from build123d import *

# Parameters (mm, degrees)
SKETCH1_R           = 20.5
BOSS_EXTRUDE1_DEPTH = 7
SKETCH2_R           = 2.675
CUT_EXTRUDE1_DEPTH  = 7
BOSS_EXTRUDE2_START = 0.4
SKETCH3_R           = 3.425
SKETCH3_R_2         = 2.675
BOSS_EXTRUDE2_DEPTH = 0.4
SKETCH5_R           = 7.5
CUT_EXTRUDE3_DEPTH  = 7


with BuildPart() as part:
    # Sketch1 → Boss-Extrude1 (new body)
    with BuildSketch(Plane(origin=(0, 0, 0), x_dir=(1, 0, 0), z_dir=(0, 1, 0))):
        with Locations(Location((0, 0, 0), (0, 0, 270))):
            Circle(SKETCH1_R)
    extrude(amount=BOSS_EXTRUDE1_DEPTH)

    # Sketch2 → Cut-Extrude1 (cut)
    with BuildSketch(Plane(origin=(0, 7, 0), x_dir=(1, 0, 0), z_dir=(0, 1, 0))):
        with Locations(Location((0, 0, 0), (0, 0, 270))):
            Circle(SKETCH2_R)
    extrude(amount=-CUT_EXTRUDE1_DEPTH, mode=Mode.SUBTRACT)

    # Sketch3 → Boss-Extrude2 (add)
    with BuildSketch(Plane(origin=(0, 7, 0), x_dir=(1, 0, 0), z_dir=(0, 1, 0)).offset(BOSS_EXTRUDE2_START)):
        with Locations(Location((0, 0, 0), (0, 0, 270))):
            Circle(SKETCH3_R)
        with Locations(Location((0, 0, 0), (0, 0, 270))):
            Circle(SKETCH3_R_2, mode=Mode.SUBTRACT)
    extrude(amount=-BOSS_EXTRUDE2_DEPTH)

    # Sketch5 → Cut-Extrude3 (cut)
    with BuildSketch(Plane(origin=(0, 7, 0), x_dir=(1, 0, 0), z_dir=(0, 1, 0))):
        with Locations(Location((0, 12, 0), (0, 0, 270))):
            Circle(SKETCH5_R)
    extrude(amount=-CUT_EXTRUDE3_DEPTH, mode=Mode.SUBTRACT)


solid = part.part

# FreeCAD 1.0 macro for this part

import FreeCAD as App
import Part
import Sketcher
from FreeCAD import Vector
Q = App.Units.Quantity

doc = App.newDocument("Part")
body = doc.addObject("PartDesign::Body", "Body")

sketch1 = body.newObject("Sketcher::SketchObject", "Sketch")
sketch1.AttachmentSupport = (doc.getObject("XZ_Plane"), [""])
sketch1.MapMode = "FlatFace"
sketch1.addGeometry(Part.Circle(Vector(0, 0, 0), Vector(0, 0, 1), 20.5), False)
sketch1.addConstraint(Sketcher.Constraint("Coincident", 0, 3, -1, 1))
sketch1.addConstraint(Sketcher.Constraint("Diameter", 0, Q("41 mm")))
pad1 = body.newObject("PartDesign::Pad", "Pad")
pad1.Profile = sketch1
pad1.Length = 7
pad1.Reversed = True

sketch2 = body.newObject("Sketcher::SketchObject", "Sketch001")
sketch2.AttachmentSupport = (doc.getObject("XZ_Plane"), [""])
sketch2.MapMode = "FlatFace"
sketch2.AttachmentOffset = App.Placement(Vector(0, 0, -7), App.Rotation())
sketch2.addGeometry(Part.Circle(Vector(0, 0, 0), Vector(0, 0, 1), 2.675), False)
sketch2.addConstraint(Sketcher.Constraint("Coincident", 0, 3, -1, 1))
sketch2.addConstraint(Sketcher.Constraint("Diameter", 0, Q("5.35 mm")))
pocket1 = body.newObject("PartDesign::Pocket", "Pocket")
pocket1.Profile = sketch2
pocket1.Length = 7
pocket1.Reversed = True

sketch3 = body.newObject("Sketcher::SketchObject", "Sketch002")
sketch3.AttachmentSupport = (doc.getObject("XZ_Plane"), [""])
sketch3.MapMode = "FlatFace"
sketch3.AttachmentOffset = App.Placement(Vector(0, 0, -7.4), App.Rotation())
sketch3.addGeometry(Part.Circle(Vector(0, 0, 0), Vector(0, 0, 1), 3.425), False)
sketch3.addGeometry(Part.Circle(Vector(0, 0, 0), Vector(0, 0, 1), 2.675), False)
sketch3.addConstraint(Sketcher.Constraint("Coincident", 0, 3, -1, 1))
sketch3.addConstraint(Sketcher.Constraint("Coincident", 1, 3, -1, 1))
sketch3.addConstraint(Sketcher.Constraint("Diameter", 0, Q("6.85 mm")))
sketch3.addConstraint(Sketcher.Constraint("Diameter", 1, Q("5.35 mm")))
pad2 = body.newObject("PartDesign::Pad", "Pad001")
pad2.Profile = sketch3
pad2.Length = 0.4

sketch4 = body.newObject("Sketcher::SketchObject", "Sketch003")
sketch4.AttachmentSupport = (doc.getObject("XZ_Plane"), [""])
sketch4.MapMode = "FlatFace"
sketch4.AttachmentOffset = App.Placement(Vector(0, 0, -7), App.Rotation())
sketch4.addGeometry(Part.Circle(Vector(0, -12, 0), Vector(0, 0, 1), 7.5), False)
sketch4.addConstraint(Sketcher.Constraint("PointOnObject", 0, 3, -2))
sketch4.addConstraint(Sketcher.Constraint("Diameter", 0, Q("15 mm")))
sketch4.addConstraint(Sketcher.Constraint("DistanceY", 0, 3, -1, 1, Q("12 mm")))
pocket2 = body.newObject("PartDesign::Pocket", "Pocket001")
pocket2.Profile = sketch4
pocket2.Length = 7
pocket2.Reversed = True

doc.recompute()
